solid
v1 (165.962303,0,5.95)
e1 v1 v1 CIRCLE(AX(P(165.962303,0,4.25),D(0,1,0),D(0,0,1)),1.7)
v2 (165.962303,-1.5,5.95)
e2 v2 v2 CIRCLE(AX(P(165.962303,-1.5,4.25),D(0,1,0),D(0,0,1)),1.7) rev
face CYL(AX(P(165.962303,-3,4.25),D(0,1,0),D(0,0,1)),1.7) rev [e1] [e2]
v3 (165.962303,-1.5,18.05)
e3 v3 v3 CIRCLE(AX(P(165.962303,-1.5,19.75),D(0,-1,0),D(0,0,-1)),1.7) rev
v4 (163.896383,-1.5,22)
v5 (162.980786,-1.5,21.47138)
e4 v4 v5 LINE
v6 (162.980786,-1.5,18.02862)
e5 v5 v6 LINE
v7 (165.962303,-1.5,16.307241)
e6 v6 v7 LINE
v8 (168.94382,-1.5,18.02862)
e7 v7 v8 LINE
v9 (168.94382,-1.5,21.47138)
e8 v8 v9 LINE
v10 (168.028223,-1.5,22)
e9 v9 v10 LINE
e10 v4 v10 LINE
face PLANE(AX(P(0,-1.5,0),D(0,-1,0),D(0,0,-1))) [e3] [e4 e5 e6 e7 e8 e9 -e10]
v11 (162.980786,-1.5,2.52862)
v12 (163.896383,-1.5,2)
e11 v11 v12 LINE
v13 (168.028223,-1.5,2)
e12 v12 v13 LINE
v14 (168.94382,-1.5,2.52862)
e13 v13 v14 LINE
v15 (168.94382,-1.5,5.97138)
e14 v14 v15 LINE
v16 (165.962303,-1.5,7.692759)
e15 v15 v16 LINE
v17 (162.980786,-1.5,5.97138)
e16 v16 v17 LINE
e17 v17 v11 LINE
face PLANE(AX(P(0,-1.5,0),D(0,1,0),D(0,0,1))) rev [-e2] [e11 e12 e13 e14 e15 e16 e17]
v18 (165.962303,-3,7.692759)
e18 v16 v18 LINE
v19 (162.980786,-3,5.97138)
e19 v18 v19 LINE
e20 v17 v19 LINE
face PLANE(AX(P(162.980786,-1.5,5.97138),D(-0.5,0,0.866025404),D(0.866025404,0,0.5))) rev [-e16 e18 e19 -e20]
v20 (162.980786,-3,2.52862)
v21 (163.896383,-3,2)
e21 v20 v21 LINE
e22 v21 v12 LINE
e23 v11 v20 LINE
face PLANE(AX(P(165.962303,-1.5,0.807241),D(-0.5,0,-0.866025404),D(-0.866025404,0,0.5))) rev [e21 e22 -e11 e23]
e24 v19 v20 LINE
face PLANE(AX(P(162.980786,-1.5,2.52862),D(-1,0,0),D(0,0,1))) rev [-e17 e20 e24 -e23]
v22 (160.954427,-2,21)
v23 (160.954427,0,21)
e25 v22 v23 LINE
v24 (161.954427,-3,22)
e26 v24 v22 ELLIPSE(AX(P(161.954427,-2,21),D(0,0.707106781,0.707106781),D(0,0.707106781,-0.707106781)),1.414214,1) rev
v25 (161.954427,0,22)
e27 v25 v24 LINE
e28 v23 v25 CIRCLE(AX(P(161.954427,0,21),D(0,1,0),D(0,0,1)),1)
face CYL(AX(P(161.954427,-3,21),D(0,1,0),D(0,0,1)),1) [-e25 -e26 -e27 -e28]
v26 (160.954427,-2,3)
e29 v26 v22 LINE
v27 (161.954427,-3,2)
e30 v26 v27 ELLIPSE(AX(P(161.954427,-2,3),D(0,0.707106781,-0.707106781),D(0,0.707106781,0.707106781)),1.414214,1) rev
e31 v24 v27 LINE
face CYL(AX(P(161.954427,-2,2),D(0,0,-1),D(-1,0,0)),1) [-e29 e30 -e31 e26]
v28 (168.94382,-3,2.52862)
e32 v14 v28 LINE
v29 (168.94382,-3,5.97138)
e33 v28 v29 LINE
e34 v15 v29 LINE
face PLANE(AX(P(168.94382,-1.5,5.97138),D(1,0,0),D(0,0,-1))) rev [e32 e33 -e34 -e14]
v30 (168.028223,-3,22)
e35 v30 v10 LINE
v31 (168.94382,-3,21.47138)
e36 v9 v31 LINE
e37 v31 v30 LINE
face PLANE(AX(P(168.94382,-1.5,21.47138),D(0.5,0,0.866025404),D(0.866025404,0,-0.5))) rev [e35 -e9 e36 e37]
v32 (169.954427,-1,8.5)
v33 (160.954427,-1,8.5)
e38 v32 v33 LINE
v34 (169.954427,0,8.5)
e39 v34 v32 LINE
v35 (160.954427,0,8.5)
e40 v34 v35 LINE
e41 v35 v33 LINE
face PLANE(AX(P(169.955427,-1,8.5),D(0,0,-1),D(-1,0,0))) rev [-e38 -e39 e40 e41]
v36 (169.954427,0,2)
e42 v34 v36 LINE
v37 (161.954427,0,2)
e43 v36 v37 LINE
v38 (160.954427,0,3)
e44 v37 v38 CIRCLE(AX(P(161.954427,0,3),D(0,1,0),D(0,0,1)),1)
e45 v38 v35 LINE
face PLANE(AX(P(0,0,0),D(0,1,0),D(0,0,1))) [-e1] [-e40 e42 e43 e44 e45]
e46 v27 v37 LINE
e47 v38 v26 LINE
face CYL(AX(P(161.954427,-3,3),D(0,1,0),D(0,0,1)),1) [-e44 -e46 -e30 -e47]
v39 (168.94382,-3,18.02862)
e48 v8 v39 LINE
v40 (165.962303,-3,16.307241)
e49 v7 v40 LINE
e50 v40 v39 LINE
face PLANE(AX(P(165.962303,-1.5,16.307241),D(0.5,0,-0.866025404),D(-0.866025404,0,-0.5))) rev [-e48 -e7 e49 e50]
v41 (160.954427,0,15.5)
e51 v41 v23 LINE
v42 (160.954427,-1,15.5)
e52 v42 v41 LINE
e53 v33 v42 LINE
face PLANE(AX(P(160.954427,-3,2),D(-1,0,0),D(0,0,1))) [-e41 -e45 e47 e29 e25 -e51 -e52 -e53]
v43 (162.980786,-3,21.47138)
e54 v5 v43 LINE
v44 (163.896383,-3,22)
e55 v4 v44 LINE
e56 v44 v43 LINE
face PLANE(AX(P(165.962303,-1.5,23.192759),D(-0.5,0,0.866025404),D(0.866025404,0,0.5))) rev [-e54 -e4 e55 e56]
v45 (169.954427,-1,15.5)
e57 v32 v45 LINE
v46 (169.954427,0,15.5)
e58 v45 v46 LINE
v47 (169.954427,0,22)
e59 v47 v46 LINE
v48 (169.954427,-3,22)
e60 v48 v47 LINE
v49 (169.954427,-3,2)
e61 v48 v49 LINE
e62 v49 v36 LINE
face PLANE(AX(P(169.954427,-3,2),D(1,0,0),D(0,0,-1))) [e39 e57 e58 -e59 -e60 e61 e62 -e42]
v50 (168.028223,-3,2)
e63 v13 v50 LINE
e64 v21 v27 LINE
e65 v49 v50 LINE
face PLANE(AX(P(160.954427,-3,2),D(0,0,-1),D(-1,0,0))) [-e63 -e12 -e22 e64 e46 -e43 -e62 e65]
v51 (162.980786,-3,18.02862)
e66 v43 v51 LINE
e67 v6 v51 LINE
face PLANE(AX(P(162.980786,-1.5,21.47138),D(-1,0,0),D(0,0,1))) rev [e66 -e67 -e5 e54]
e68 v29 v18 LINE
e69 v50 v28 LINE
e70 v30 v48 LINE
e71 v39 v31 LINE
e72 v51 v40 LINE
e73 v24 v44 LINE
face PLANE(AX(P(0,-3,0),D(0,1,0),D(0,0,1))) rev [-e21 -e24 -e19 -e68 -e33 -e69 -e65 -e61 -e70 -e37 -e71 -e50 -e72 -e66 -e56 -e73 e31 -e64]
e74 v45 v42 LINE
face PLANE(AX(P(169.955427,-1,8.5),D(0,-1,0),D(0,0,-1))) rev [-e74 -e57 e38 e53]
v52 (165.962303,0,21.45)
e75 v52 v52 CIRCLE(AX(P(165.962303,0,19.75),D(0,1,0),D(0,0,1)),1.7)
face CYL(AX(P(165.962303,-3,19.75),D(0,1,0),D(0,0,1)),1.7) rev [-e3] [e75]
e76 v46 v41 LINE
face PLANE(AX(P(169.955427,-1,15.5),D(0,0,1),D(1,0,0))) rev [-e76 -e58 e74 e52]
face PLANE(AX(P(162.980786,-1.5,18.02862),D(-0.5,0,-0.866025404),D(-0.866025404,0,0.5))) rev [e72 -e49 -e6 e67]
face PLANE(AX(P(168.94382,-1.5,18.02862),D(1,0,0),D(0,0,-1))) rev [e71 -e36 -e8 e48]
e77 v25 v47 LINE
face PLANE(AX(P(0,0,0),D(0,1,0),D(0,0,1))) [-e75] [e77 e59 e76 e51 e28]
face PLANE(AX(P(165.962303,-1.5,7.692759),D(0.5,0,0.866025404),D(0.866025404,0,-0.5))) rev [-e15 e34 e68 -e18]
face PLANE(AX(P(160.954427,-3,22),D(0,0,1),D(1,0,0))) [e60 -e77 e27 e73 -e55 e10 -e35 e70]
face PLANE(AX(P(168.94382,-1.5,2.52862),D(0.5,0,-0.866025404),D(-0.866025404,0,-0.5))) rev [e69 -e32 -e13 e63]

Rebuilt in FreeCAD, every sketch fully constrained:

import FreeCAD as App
import Part
import Sketcher
Q = App.Units.Quantity


def edges_at(feature, points):
    """Names of the edges that pass closest to the given points."""
    edges = feature.Shape.Edges
    near = lambda p: min(range(len(edges)), key=lambda i: edges[i].distToShape(Part.Vertex(*p))[0])
    return sorted({f"Edge{near(p) + 1}" for p in points})

doc = App.newDocument("Part")
body = doc.addObject("PartDesign::Body", "Body")

# Sketch on XZ plane
sketch1 = body.newObject("Sketcher::SketchObject", "Sketch")
sketch1.AttachmentSupport = (doc.getObject("XZ_Plane"), [""])
sketch1.MapMode = "FlatFace"
sketch1.addGeometry([
    Part.LineSegment(App.Vector(160.954427, 2, 0), App.Vector(160.954427, 22, 0)),  # 0
    Part.LineSegment(App.Vector(160.954427, 22, 0), App.Vector(169.954427, 22, 0)),  # 1
    Part.LineSegment(App.Vector(169.954427, 22, 0), App.Vector(169.954427, 2, 0)),  # 2
    Part.LineSegment(App.Vector(169.954427, 2, 0), App.Vector(160.954427, 2, 0)),  # 3
    Part.Circle(App.Vector(165.962303, 19.75, 0), App.Vector(0, 0, 1), 1.7),  # 4
    Part.Circle(App.Vector(165.962303, 4.25, 0), App.Vector(0, 0, 1), 1.7),  # 5
], False)
sketch1.addConstraint([
    Sketcher.Constraint("Coincident", 0, 2, 1, 1),
    Sketcher.Constraint("Coincident", 1, 2, 2, 1),
    Sketcher.Constraint("Coincident", 2, 2, 3, 1),
    Sketcher.Constraint("Coincident", 3, 2, 0, 1),
    Sketcher.Constraint("Vertical", 0),
    Sketcher.Constraint("Horizontal", 1),
    Sketcher.Constraint("Vertical", 2),
    Sketcher.Constraint("Horizontal", 3),
    Sketcher.Constraint("Equal", 4, 5),
    Sketcher.Constraint("Vertical", 4, 3, 5, 3),
    Sketcher.Constraint("Diameter", 4, Q("3.4 mm")),
    Sketcher.Constraint("DistanceX", 1, 1, 1, 2, Q("9 mm")),
    Sketcher.Constraint("DistanceY", 0, 1, 0, 2, Q("20 mm")),
    Sketcher.Constraint("DistanceY", -1, 1, 0, 2, Q("22 mm")),
    Sketcher.Constraint("DistanceY", 5, 3, 4, 3, Q("15.5 mm")),
    Sketcher.Constraint("DistanceY", -1, 1, 4, 3, Q("19.75 mm")),
    Sketcher.Constraint("DistanceX", -1, 1, 4, 3, Q("165.962303 mm")),
    Sketcher.Constraint("DistanceX", -1, 1, 0, 2, Q("160.954427 mm")),
])
pad1 = body.newObject("PartDesign::Pad", "Pad")
pad1.Profile = sketch1
pad1.Length = 3

# Sketch on XZ plane
sketch2 = body.newObject("Sketcher::SketchObject", "Sketch001")
sketch2.AttachmentSupport = (doc.getObject("XZ_Plane"), [""])
sketch2.MapMode = "FlatFace"
sketch2.AttachmentOffset = App.Placement(App.Vector(0, 0, 3), App.Rotation())
sketch2.addGeometry([
    Part.LineSegment(App.Vector(168.94382, 21.47138, 0), App.Vector(165.962303, 23.192759, 0)),  # 0
    Part.LineSegment(App.Vector(165.962303, 23.192759, 0), App.Vector(162.980786, 21.47138, 0)),  # 1
    Part.LineSegment(App.Vector(162.980786, 21.47138, 0), App.Vector(162.980786, 18.02862, 0)),  # 2
    Part.LineSegment(App.Vector(162.980786, 18.02862, 0), App.Vector(165.962303, 16.307241, 0)),  # 3
    Part.LineSegment(App.Vector(165.962303, 16.307241, 0), App.Vector(168.94382, 18.02862, 0)),  # 4
    Part.LineSegment(App.Vector(168.94382, 18.02862, 0), App.Vector(168.94382, 21.47138, 0)),  # 5
    Part.LineSegment(App.Vector(168.94382, 2.52862, 0), App.Vector(168.94382, 5.97138, 0)),  # 6
    Part.LineSegment(App.Vector(168.94382, 5.97138, 0), App.Vector(165.962303, 7.692759, 0)),  # 7
    Part.LineSegment(App.Vector(165.962303, 7.692759, 0), App.Vector(162.980786, 5.97138, 0)),  # 8
    Part.LineSegment(App.Vector(162.980786, 5.97138, 0), App.Vector(162.980786, 2.52862, 0)),  # 9
    Part.LineSegment(App.Vector(162.980786, 2.52862, 0), App.Vector(165.962303, 0.807241, 0)),  # 10
    Part.LineSegment(App.Vector(165.962303, 0.807241, 0), App.Vector(168.94382, 2.52862, 0)),  # 11
], False)
sketch2.addConstraint([
    Sketcher.Constraint("Coincident", 0, 2, 1, 1),
    Sketcher.Constraint("Coincident", 1, 2, 2, 1),
    Sketcher.Constraint("Coincident", 2, 2, 3, 1),
    Sketcher.Constraint("Coincident", 3, 2, 4, 1),
    Sketcher.Constraint("Coincident", 4, 2, 5, 1),
    Sketcher.Constraint("Coincident", 5, 2, 0, 1),
    Sketcher.Constraint("Coincident", 6, 2, 7, 1),
    Sketcher.Constraint("Coincident", 7, 2, 8, 1),
    Sketcher.Constraint("Coincident", 8, 2, 9, 1),
    Sketcher.Constraint("Coincident", 9, 2, 10, 1),
    Sketcher.Constraint("Coincident", 10, 2, 11, 1),
    Sketcher.Constraint("Coincident", 11, 2, 6, 1),
    Sketcher.Constraint("Vertical", 2),
    Sketcher.Constraint("Vertical", 5),
    Sketcher.Constraint("Vertical", 6),
    Sketcher.Constraint("Vertical", 9),
    Sketcher.Constraint("Parallel", 0, 3),
    Sketcher.Constraint("Parallel", 1, 4),
    Sketcher.Constraint("Parallel", 3, 7),
    Sketcher.Constraint("Parallel", 4, 8),
    Sketcher.Constraint("Parallel", 7, 10),
    Sketcher.Constraint("Parallel", 8, 11),
    Sketcher.Constraint("Horizontal", 2, 2, 4, 2),
    Sketcher.Constraint("Horizontal", 1, 2, 5, 2),
    Sketcher.Constraint("Horizontal", 6, 2, 8, 2),
    Sketcher.Constraint("Horizontal", 9, 2, 11, 2),
    Sketcher.Constraint("Vertical", 0, 2, 3, 2),
    Sketcher.Constraint("Vertical", 5, 2, 6, 2),
    Sketcher.Constraint("Vertical", 3, 2, 7, 2),
    Sketcher.Constraint("Equal", 5, 6),
    Sketcher.Constraint("Angle", 0, Q("150 deg")),
    Sketcher.Constraint("DistanceY", 6, 2, 5, 2, Q("15.5 mm")),
    Sketcher.Constraint("DistanceY", 2, 2, 2, 1, Q("3.442759 mm")),
    Sketcher.Constraint("Distance", 0, Q("3.442759 mm")),
    Sketcher.Constraint("DistanceY", -1, 1, 0, 2, Q("23.192759 mm")),
    Sketcher.Constraint("DistanceX", -1, 1, 4, 2, Q("168.94382 mm")),
])
pocket1 = body.newObject("PartDesign::Pocket", "Pocket")
pocket1.Profile = sketch2
pocket1.Length = 1.5

# Sketch on YZ plane
sketch3 = body.newObject("Sketcher::SketchObject", "Sketch002")
sketch3.AttachmentSupport = (doc.getObject("YZ_Plane"), [""])
sketch3.MapMode = "FlatFace"
sketch3.AttachmentOffset = App.Placement(App.Vector(0, 0, 160.954427), App.Rotation())
sketch3.addGeometry([
    Part.LineSegment(App.Vector(0, 8.5, 0), App.Vector(-1, 8.5, 0)),
    Part.LineSegment(App.Vector(-1, 8.5, 0), App.Vector(-1, 15.5, 0)),
    Part.LineSegment(App.Vector(-1, 15.5, 0), App.Vector(0, 15.5, 0)),
    Part.LineSegment(App.Vector(0, 15.5, 0), App.Vector(0, 8.5, 0)),
], False)
sketch3.addConstraint([
    Sketcher.Constraint("Coincident", 0, 2, 1, 1),
    Sketcher.Constraint("Coincident", 1, 2, 2, 1),
    Sketcher.Constraint("Coincident", 2, 2, 3, 1),
    Sketcher.Constraint("Coincident", 3, 2, 0, 1),
    Sketcher.Constraint("Horizontal", 0),
    Sketcher.Constraint("Vertical", 1),
    Sketcher.Constraint("Horizontal", 2),
    Sketcher.Constraint("Vertical", 3),
    Sketcher.Constraint("PointOnObject", 2, 2, -2),
    Sketcher.Constraint("DistanceX", 0, 2, 0, 1, Q("1 mm")),
    Sketcher.Constraint("DistanceY", 1, 1, 1, 2, Q("7 mm")),
    Sketcher.Constraint("DistanceY", -1, 1, 0, 2, Q("8.5 mm")),
])
pocket2 = body.newObject("PartDesign::Pocket", "Pocket001")
pocket2.Profile = sketch3
pocket2.Type = "UpToFirst"
pocket2.Reversed = True
doc.recompute()

fillet = body.newObject("PartDesign::Fillet", "Fillet")
fillet.Base = (pocket2, edges_at(pocket2, [(160.954, -3, 12), (160.954, -1.5, 2), (160.954, -1.5, 22)]))
fillet.Radius = 1

doc.recompute()
